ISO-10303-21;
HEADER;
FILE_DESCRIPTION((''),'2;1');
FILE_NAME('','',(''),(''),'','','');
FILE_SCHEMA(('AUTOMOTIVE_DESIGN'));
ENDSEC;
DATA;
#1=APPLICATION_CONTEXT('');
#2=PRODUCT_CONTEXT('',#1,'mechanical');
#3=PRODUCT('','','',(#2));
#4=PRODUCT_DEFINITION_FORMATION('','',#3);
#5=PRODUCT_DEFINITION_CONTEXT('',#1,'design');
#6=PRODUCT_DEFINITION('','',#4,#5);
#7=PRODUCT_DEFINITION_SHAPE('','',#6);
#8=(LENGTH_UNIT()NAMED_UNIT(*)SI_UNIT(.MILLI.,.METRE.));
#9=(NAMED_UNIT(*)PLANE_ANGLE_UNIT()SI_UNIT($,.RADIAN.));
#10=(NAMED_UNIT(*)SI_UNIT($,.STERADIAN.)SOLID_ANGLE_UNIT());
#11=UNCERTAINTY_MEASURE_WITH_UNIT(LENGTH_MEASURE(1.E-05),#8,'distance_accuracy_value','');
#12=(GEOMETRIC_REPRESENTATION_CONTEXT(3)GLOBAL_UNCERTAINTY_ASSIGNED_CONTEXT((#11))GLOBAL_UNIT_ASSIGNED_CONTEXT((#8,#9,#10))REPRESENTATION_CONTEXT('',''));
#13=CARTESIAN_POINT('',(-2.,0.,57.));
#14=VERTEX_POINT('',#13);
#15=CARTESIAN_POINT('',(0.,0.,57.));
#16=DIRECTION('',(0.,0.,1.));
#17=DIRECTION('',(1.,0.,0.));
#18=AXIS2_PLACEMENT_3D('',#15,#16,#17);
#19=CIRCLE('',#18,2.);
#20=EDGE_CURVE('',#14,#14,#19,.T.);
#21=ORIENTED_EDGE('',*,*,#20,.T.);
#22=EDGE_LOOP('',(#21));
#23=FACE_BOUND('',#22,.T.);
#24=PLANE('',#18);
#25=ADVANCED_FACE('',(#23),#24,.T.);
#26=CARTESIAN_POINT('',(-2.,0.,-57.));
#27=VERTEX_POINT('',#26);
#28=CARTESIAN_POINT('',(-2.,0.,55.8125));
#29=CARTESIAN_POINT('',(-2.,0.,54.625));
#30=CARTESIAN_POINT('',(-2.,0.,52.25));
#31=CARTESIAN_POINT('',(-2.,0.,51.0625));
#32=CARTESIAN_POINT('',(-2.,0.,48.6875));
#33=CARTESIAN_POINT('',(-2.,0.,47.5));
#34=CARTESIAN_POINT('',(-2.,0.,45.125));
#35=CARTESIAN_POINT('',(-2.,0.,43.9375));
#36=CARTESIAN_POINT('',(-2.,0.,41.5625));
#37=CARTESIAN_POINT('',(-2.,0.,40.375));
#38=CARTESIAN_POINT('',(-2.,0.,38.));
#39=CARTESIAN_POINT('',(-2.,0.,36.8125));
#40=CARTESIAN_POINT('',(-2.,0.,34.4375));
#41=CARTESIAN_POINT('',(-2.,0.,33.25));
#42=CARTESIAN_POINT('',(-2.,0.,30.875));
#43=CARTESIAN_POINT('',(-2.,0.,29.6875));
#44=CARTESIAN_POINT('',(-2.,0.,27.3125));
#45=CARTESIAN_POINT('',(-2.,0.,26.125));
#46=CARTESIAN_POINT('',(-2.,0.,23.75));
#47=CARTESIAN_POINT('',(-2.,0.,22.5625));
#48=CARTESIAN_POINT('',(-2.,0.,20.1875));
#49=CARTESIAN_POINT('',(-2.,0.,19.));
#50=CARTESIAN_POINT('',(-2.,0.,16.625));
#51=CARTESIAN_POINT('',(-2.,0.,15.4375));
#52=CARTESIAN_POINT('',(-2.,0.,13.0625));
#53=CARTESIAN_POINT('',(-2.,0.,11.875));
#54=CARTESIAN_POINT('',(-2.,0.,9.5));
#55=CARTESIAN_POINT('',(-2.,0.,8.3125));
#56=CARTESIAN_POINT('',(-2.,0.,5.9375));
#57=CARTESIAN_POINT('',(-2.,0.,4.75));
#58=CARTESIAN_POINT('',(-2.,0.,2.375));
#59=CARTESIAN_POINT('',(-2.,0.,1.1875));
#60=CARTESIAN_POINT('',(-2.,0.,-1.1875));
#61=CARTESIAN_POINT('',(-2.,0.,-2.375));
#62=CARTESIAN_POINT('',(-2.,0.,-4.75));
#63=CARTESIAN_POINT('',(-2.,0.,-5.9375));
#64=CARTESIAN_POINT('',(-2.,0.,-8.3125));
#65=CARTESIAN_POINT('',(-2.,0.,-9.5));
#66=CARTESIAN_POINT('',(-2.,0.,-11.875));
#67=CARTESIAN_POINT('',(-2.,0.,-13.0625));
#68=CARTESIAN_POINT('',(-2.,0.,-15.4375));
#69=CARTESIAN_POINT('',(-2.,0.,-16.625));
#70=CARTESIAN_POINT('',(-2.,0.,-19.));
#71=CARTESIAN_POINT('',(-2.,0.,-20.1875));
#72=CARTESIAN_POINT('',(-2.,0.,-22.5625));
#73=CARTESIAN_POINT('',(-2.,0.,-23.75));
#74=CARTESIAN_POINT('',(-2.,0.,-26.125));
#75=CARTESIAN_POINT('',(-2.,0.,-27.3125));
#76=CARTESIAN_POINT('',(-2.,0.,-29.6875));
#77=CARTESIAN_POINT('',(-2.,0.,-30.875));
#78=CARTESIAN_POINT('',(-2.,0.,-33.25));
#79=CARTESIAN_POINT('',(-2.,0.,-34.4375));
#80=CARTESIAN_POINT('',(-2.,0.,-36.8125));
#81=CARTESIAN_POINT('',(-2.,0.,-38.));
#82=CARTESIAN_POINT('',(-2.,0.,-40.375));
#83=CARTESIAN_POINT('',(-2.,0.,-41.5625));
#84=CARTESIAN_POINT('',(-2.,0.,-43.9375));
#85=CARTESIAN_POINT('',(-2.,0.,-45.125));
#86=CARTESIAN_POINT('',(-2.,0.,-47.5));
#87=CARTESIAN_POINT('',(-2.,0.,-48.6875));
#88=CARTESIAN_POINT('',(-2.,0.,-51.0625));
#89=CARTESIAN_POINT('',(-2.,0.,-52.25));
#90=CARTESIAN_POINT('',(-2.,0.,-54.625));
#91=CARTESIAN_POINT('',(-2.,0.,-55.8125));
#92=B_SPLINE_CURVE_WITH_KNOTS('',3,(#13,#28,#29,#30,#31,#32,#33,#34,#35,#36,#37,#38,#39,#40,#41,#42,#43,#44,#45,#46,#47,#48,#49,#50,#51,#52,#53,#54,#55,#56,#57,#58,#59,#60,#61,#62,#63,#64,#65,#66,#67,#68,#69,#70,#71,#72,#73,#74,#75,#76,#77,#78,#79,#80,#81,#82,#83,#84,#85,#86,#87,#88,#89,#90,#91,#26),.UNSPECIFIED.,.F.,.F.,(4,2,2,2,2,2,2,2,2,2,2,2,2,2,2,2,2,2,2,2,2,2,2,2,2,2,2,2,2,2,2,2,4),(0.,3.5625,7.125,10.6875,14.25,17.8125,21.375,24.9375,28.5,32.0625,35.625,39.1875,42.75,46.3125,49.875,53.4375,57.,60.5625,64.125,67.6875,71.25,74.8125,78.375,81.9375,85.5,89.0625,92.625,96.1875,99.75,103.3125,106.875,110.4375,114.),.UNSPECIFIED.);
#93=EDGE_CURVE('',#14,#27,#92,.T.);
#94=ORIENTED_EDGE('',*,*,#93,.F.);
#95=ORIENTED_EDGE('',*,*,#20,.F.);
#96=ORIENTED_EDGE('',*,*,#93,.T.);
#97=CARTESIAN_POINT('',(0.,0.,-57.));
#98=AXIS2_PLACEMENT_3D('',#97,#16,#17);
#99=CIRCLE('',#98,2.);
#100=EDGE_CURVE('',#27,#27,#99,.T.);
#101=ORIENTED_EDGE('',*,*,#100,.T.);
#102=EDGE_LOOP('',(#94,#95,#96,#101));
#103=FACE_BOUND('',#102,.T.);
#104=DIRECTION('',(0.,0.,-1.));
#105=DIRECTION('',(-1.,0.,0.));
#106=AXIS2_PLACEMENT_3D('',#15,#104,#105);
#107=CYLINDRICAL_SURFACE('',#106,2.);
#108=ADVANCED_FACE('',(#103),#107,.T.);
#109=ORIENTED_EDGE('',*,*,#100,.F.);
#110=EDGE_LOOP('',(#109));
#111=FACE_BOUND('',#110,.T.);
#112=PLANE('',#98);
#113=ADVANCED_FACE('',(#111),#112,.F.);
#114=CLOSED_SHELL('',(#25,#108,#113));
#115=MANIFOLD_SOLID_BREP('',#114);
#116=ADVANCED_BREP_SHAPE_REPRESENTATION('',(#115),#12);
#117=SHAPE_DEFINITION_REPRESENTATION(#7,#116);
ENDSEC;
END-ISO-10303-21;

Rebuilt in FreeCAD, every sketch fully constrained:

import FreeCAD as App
import Part
import Sketcher

doc = App.newDocument("Part")
body = doc.addObject("PartDesign::Body", "Body")

# Sketch on XY plane
sketch1 = doc.addObject("Sketcher::SketchObject", "Sketch")
body.addObject(sketch1)
sketch1.AttachmentSupport = (doc.XY_Plane, [""])
sketch1.MapMode = "FlatFace"
sketch1.AttachmentOffset = App.Placement(App.Vector(0, 0, -57), App.Rotation())
sketch1.addGeometry(Part.Circle(App.Vector(0, 0, 0), App.Vector(0, 0, 1), 2), False)
sketch1.addConstraint([
    Sketcher.Constraint("Coincident", 0, 3, -1, 1),
    Sketcher.Constraint("Diameter", 0, 4.0),
])
pad1 = doc.addObject("PartDesign::Pad", "Pad")
body.addObject(pad1)
pad1.Profile = sketch1
pad1.Length = 114

doc.recompute()
